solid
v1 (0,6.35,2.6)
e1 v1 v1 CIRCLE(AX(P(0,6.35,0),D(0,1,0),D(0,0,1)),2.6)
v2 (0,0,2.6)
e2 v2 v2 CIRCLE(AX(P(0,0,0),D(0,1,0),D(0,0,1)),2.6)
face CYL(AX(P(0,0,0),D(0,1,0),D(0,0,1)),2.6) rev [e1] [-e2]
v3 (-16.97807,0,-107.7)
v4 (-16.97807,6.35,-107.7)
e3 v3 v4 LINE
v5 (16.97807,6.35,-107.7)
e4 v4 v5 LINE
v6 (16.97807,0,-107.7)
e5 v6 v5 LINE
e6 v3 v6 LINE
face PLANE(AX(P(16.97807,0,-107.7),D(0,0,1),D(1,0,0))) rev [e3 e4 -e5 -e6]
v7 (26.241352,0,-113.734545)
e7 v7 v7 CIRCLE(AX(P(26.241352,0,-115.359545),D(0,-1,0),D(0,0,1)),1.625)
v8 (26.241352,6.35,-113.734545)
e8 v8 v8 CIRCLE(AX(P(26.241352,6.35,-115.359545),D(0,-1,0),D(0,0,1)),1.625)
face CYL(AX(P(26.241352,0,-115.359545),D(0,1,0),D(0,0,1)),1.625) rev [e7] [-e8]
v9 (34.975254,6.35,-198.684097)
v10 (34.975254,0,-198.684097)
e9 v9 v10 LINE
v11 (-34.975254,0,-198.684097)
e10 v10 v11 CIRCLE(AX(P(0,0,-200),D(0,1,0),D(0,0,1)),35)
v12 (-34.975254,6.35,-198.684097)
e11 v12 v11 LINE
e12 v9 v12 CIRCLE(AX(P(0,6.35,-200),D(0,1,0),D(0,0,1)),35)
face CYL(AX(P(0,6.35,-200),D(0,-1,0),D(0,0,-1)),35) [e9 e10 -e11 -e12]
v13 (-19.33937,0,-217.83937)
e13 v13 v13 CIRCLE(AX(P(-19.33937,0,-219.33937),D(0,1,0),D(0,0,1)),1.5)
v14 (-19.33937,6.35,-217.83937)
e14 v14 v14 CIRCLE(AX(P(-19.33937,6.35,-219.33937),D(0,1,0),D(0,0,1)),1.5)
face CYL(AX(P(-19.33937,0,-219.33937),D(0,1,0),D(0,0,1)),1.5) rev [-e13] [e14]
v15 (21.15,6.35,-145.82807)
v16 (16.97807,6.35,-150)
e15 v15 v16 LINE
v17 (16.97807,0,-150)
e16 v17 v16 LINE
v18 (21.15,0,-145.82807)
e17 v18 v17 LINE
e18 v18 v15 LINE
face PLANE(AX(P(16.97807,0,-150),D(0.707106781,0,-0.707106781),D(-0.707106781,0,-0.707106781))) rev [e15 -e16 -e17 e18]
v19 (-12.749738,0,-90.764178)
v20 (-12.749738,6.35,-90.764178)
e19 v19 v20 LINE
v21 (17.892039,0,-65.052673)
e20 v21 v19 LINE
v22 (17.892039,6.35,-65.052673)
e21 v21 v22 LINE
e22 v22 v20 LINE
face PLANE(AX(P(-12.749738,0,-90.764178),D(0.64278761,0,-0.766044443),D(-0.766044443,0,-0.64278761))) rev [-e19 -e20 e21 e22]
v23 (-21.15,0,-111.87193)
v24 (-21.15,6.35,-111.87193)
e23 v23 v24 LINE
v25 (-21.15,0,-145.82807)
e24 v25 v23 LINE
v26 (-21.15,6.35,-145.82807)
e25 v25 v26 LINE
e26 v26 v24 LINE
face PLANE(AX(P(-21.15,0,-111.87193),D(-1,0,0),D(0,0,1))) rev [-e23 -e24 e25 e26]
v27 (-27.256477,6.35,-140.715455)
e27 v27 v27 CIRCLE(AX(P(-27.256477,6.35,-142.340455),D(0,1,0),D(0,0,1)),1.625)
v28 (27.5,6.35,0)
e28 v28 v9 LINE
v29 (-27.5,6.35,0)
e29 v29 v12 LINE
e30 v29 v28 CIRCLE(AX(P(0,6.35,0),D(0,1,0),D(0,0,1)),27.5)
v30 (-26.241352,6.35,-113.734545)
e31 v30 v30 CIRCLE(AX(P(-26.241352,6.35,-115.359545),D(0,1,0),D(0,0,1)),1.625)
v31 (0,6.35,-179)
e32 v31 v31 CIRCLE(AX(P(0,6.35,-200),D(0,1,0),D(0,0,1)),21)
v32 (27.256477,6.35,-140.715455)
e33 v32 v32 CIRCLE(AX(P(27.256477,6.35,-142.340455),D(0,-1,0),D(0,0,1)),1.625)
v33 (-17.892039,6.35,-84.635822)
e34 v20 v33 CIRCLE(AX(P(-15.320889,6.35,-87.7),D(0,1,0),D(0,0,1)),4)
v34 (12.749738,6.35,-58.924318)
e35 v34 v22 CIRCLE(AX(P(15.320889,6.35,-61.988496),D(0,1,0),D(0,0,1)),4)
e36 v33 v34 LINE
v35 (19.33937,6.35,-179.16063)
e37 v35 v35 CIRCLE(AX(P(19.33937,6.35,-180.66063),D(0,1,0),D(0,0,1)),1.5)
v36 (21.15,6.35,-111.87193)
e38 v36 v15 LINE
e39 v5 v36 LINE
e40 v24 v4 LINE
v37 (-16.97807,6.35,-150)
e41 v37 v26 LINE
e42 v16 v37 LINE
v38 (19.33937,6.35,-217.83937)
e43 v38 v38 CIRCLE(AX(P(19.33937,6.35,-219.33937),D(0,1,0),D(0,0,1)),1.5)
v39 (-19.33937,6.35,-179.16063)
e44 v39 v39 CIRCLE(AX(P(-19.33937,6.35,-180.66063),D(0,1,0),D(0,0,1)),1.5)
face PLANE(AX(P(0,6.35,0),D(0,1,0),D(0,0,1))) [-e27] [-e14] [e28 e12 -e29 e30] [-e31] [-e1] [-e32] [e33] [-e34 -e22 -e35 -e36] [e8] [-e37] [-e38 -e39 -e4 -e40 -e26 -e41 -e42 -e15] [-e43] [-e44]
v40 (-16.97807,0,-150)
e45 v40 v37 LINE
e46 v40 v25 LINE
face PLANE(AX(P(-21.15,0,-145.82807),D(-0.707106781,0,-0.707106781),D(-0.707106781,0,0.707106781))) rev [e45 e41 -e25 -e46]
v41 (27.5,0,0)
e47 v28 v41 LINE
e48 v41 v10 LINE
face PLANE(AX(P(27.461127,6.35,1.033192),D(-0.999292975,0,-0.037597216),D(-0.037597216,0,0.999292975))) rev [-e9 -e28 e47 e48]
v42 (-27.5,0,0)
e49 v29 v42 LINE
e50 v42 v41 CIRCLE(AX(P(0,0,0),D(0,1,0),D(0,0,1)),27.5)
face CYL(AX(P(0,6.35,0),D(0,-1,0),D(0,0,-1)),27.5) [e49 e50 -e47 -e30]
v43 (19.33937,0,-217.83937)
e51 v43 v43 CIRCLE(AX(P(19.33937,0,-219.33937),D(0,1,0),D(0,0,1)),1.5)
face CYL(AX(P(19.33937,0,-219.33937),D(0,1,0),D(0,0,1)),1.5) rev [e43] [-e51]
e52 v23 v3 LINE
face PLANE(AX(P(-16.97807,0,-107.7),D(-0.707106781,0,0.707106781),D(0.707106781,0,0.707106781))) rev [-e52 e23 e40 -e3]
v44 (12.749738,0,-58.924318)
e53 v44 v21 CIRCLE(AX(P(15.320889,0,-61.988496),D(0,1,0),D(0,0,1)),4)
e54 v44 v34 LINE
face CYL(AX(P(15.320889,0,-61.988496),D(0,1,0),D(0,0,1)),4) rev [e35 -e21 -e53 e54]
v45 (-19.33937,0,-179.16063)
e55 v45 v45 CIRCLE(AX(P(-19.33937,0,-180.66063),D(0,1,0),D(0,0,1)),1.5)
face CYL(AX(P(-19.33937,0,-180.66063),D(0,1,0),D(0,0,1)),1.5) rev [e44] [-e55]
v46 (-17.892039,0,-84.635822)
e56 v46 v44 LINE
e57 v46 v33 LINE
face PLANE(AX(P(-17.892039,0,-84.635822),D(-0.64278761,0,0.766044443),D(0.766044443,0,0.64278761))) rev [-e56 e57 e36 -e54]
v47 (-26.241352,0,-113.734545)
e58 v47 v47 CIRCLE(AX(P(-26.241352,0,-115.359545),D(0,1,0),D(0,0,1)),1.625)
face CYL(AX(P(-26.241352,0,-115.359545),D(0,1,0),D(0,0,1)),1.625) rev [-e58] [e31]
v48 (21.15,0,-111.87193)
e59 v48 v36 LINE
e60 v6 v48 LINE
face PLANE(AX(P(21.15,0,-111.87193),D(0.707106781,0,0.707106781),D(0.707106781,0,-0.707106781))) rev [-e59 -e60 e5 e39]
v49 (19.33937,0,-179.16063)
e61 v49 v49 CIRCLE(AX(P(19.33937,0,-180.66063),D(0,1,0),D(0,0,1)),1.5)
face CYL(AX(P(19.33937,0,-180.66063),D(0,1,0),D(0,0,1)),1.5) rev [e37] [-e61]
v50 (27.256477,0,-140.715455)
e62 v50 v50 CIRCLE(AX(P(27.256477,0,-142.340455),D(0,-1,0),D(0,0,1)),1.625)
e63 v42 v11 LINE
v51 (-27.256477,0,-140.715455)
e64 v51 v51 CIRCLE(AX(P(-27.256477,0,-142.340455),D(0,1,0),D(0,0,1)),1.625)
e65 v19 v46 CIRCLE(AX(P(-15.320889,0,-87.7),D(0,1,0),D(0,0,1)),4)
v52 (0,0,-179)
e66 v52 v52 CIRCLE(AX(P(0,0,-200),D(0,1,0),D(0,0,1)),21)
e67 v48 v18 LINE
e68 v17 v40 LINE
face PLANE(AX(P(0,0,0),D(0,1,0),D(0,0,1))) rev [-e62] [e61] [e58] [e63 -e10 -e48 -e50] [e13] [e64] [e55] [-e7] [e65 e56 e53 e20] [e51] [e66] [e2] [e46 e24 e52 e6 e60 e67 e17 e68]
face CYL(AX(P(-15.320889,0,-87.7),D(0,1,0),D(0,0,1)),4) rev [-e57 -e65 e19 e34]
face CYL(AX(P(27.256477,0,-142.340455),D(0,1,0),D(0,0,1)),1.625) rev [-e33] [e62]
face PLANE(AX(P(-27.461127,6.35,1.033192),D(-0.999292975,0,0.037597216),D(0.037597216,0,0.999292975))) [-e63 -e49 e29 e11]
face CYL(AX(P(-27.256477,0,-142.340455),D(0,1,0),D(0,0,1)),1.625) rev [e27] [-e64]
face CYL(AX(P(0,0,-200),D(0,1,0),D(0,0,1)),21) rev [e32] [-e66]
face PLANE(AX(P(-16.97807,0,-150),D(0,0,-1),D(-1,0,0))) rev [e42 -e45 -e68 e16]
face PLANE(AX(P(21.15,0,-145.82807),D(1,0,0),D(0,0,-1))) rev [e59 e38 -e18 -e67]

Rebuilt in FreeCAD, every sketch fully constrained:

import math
import FreeCAD as App
import Part
import Sketcher

V = App.Vector
Q = App.Units.Quantity

doc = App.newDocument("Part")
params = doc.addObject("Spreadsheet::Sheet", "Params")
for row, (alias, value) in enumerate([
    ("sketch1_radius", "35 mm"),
    ("sketch1_radius2", "27.5 mm"),
    ("pad1_length", "6.35 mm"),
    ("sketch2_diameter", "5.2 mm"),
    ("sketch3_diameter", "42 mm"),
    ("sketch4_diameter", "3 mm"),
    ("sketch5_length", "5.9 mm"),
    ("sketch6_diameter", "3.25 mm"),
    ("sketch7_radius", "4 mm"),
    ("sketch7_length", "40 mm"),
], start=1):
    params.set(f"A{row}", alias)
    params.set(f"B{row}", "=" + value)
    params.setAlias(f"B{row}", alias)

body = doc.addObject("PartDesign::Body", "Body")

# Sketch on XZ plane
sketch1 = body.newObject("Sketcher::SketchObject", "Sketch")
sketch1.AttachmentSupport = (doc.getObject("XZ_Plane"), [""])
sketch1.MapMode = "FlatFace"
sketch1.addGeometry([
    Part.LineSegment(V(27.5, 0, 0), V(34.975254, -198.684097, 0)),
    Part.ArcOfCircle(Part.Circle(V(0, -200, 0), V(0, 0, 1), 35), math.radians(177.84533), math.radians(362.15467)),
    Part.LineSegment(V(-34.975254, -198.684097, 0), V(-27.5, 0, 0)),
    Part.ArcOfCircle(Part.Circle(V(0, 0, 0), V(0, 0, 1), 27.5), math.radians(0), math.radians(180)),
], False)
sketch1.addConstraint([
    Sketcher.Constraint("Tangent", 0, 2, 1, 2),
    Sketcher.Constraint("Tangent", 1, 1, 2, 1),
    Sketcher.Constraint("Coincident", 2, 2, 3, 2),
    Sketcher.Constraint("Coincident", 3, 1, 0, 1),
    Sketcher.Constraint("Coincident", 3, 3, -1, 1),
    Sketcher.Constraint("PointOnObject", 1, 3, -2),
    Sketcher.Constraint("PointOnObject", 2, 2, -1),
    Sketcher.Constraint("PointOnObject", 3, 1, -1),
    Sketcher.Constraint("Radius", 1, 35.0),
    Sketcher.Constraint("Radius", 3, 27.5),
    Sketcher.Constraint("DistanceY", 1, 3, -1, 1, 200.0),
])
sketch1.setExpression("Constraints[8]", "Params.sketch1_radius")
sketch1.setExpression("Constraints[9]", "Params.sketch1_radius2")
pad1 = body.newObject("PartDesign::Pad", "Pad")
pad1.Profile = sketch1
pad1.setExpression("Length", "Params.pad1_length")
pad1.Reversed = True

# Sketch on XZ plane
sketch2 = body.newObject("Sketcher::SketchObject", "Sketch001")
sketch2.AttachmentSupport = (doc.getObject("XZ_Plane"), [""])
sketch2.MapMode = "FlatFace"
sketch2.AttachmentOffset = App.Placement(V(0, 0, -6.35), App.Rotation())
sketch2.addGeometry(Part.Circle(V(0, 0, 0), V(0, 0, 1), 2.6), False)
sketch2.addConstraint([
    Sketcher.Constraint("Coincident", 0, 3, -1, 1),
    Sketcher.Constraint("Diameter", 0, 5.2),
])
sketch2.setExpression("Constraints[1]", "Params.sketch2_diameter")
pocket1 = body.newObject("PartDesign::Pocket", "Pocket")
pocket1.Profile = sketch2
pocket1.Type = "ThroughAll"
pocket1.Reversed = True

# Sketch on XZ plane
sketch3 = body.newObject("Sketcher::SketchObject", "Sketch002")
sketch3.AttachmentSupport = (doc.getObject("XZ_Plane"), [""])
sketch3.MapMode = "FlatFace"
sketch3.AttachmentOffset = App.Placement(V(0, 0, -6.35), App.Rotation())
sketch3.addGeometry(Part.Circle(V(0, -200, 0), V(0, 0, 1), 21), False)
sketch3.addConstraint([
    Sketcher.Constraint("PointOnObject", 0, 3, -2),
    Sketcher.Constraint("Diameter", 0, 42.0),
    Sketcher.Constraint("DistanceY", 0, 3, -1, 1, 200.0),
])
sketch3.setExpression("Constraints[1]", "Params.sketch3_diameter")
pocket2 = body.newObject("PartDesign::Pocket", "Pocket001")
pocket2.Profile = sketch3
pocket2.Type = "ThroughAll"
pocket2.Reversed = True

# Sketch on XZ plane
sketch4 = body.newObject("Sketcher::SketchObject", "Sketch003")
sketch4.AttachmentSupport = (doc.getObject("XZ_Plane"), [""])
sketch4.MapMode = "FlatFace"
sketch4.AttachmentOffset = App.Placement(V(0, 0, -6.35), App.Rotation())
sketch4.addGeometry([
    Part.Circle(V(-19.33937, -219.33937, 0), V(0, 0, 1), 1.5),
    Part.Circle(V(19.33937, -219.33937, 0), V(0, 0, 1), 1.5),
    Part.Circle(V(19.33937, -180.66063, 0), V(0, 0, 1), 1.5),
    Part.Circle(V(-19.33937, -180.66063, 0), V(0, 0, 1), 1.5),
], False)
sketch4.addConstraint([
    Sketcher.Constraint("Equal", 0, 1),
    Sketcher.Constraint("Equal", 1, 2),
    Sketcher.Constraint("Equal", 2, 3),
    Sketcher.Constraint("Symmetric", 0, 3, 1, 3, -2),
    Sketcher.Constraint("Symmetric", 2, 3, 3, 3, -2),
    Sketcher.Constraint("Vertical", 1, 3, 2, 3),
    Sketcher.Constraint("Diameter", 0, 3.0),
    Sketcher.Constraint("DistanceX", 0, 3, -1, 1, 19.33937),
    Sketcher.Constraint("DistanceY", 0, 3, -1, 1, 219.33937),
    Sketcher.Constraint("DistanceY", 2, 3, -1, 1, 180.66063),
])
sketch4.setExpression("Constraints[6]", "Params.sketch4_diameter")
pocket3 = body.newObject("PartDesign::Pocket", "Pocket002")
pocket3.Profile = sketch4
pocket3.Type = "ThroughAll"
pocket3.Reversed = True

# Sketch on XZ plane
sketch5 = body.newObject("Sketcher::SketchObject", "Sketch004")
sketch5.AttachmentSupport = (doc.getObject("XZ_Plane"), [""])
sketch5.MapMode = "FlatFace"
sketch5.AttachmentOffset = App.Placement(V(0, 0, -6.35), App.Rotation())
sketch5.addGeometry([
    Part.LineSegment(V(21.15, -111.87193, 0), V(21.15, -145.82807, 0)),  # 0
    Part.LineSegment(V(21.15, -145.82807, 0), V(16.97807, -150, 0)),  # 1
    Part.LineSegment(V(16.97807, -150, 0), V(-16.97807, -150, 0)),  # 2
    Part.LineSegment(V(-16.97807, -150, 0), V(-21.15, -145.82807, 0)),  # 3
    Part.LineSegment(V(-21.15, -145.82807, 0), V(-21.15, -111.87193, 0)),  # 4
    Part.LineSegment(V(-21.15, -111.87193, 0), V(-16.97807, -107.7, 0)),  # 5
    Part.LineSegment(V(-16.97807, -107.7, 0), V(16.97807, -107.7, 0)),  # 6
    Part.LineSegment(V(16.97807, -107.7, 0), V(21.15, -111.87193, 0)),  # 7
], False)
sketch5.addConstraint([
    Sketcher.Constraint("Coincident", 0, 2, 1, 1),
    Sketcher.Constraint("Coincident", 1, 2, 2, 1),
    Sketcher.Constraint("Coincident", 2, 2, 3, 1),
    Sketcher.Constraint("Coincident", 3, 2, 4, 1),
    Sketcher.Constraint("Coincident", 4, 2, 5, 1),
    Sketcher.Constraint("Coincident", 5, 2, 6, 1),
    Sketcher.Constraint("Coincident", 6, 2, 7, 1),
    Sketcher.Constraint("Coincident", 7, 2, 0, 1),
    Sketcher.Constraint("Vertical", 0),
    Sketcher.Constraint("Horizontal", 2),
    Sketcher.Constraint("Vertical", 4),
    Sketcher.Constraint("Horizontal", 6),
    Sketcher.Constraint("Symmetric", 0, 2, 3, 2, -2),
    Sketcher.Constraint("Perpendicular", 1, 3),
    Sketcher.Constraint("Perpendicular", 3, 5),
    Sketcher.Constraint("Perpendicular", 5, 7),
    Sketcher.Constraint("Horizontal", 4, 2, 7, 2),
    Sketcher.Constraint("Vertical", 2, 2, 5, 2),
    Sketcher.Constraint("Vertical", 1, 2, 6, 2),
    Sketcher.Constraint("Equal", 6, 0),
    Sketcher.Constraint("DistanceY", 1, 2, -1, 1, 150.0),
    Sketcher.Constraint("Distance", 1, 5.9),
    Sketcher.Constraint("DistanceY", 5, 2, -1, 1, 107.7),
])
sketch5.setExpression("Constraints[21]", "Params.sketch5_length")
pocket4 = body.newObject("PartDesign::Pocket", "Pocket003")
pocket4.Profile = sketch5
pocket4.Type = "ThroughAll"
pocket4.Reversed = True

# Sketch on XZ plane
sketch6 = body.newObject("Sketcher::SketchObject", "Sketch005")
sketch6.AttachmentSupport = (doc.getObject("XZ_Plane"), [""])
sketch6.MapMode = "FlatFace"
sketch6.AttachmentOffset = App.Placement(V(0, 0, -6.35), App.Rotation())
sketch6.addGeometry([
    Part.Circle(V(-27.256477, -142.340455, 0), V(0, 0, 1), 1.625),
    Part.Circle(V(-26.241352, -115.359545, 0), V(0, 0, 1), 1.625),
], False)
sketch6.addConstraint([
    Sketcher.Constraint("Equal", 0, 1),
    Sketcher.Constraint("Diameter", 0, 3.25),
    Sketcher.Constraint("DistanceX", 1, 3, -1, 1, 26.241352),
    Sketcher.Constraint("DistanceY", 0, 3, 1, 3, 26.98091),
    Sketcher.Constraint("DistanceX", 0, 3, -1, 1, 27.256477),
    Sketcher.Constraint("DistanceY", 0, 3, -1, 1, 142.340455),
])
sketch6.setExpression("Constraints[1]", "Params.sketch6_diameter")
pocket5 = body.newObject("PartDesign::Pocket", "Pocket004")
pocket5.Profile = sketch6
pocket5.Type = "ThroughAll"
pocket5.Reversed = True
doc.recompute()

mirrored = body.newObject("PartDesign::Mirrored", "Mirrored")
mirrored.Originals = [pocket5]
mirrored.MirrorPlane = (doc.getObject("YZ_Plane"), [""])
body.Tip = mirrored

# Sketch on XZ plane
sketch7 = body.newObject("Sketcher::SketchObject", "Sketch006")
sketch7.AttachmentSupport = (doc.getObject("XZ_Plane"), [""])
sketch7.MapMode = "FlatFace"
sketch7.AttachmentOffset = App.Placement(V(0, 0, -6.35), App.Rotation())
sketch7.addGeometry([
    Part.LineSegment(V(17.892039, -65.052673, 0), V(-12.749738, -90.764178, 0)),
    Part.ArcOfCircle(Part.Circle(V(-15.320889, -87.7, 0), V(0, 0, 1), 4), math.radians(130), math.radians(310)),
    Part.LineSegment(V(-17.892039, -84.635822, 0), V(12.749738, -58.924318, 0)),
    Part.ArcOfCircle(Part.Circle(V(15.320889, -61.988496, 0), V(0, 0, 1), 4), math.radians(-50), math.radians(130)),
], False)
sketch7.addConstraint([
    Sketcher.Constraint("Tangent", 0, 2, 1, 2),
    Sketcher.Constraint("Tangent", 1, 1, 2, 1),
    Sketcher.Constraint("Tangent", 2, 2, 3, 2),
    Sketcher.Constraint("Tangent", 3, 1, 0, 1),
    Sketcher.Constraint("Equal", 1, 3),
    Sketcher.Constraint("Radius", 1, 4.0),
    Sketcher.Constraint("Angle", 0, Q("-140 deg")),
    Sketcher.Constraint("Distance", 0, 40.0),
    Sketcher.Constraint("DistanceY", 1, 3, -1, 1, 87.7),
    Sketcher.Constraint("DistanceX", 1, 3, -1, 1, 15.320889),
])
sketch7.setExpression("Constraints[5]", "Params.sketch7_radius")
sketch7.setExpression("Constraints[7]", "Params.sketch7_length")
pocket6 = body.newObject("PartDesign::Pocket", "Pocket005")
pocket6.Profile = sketch7
pocket6.Type = "ThroughAll"
pocket6.Reversed = True

doc.recompute()
